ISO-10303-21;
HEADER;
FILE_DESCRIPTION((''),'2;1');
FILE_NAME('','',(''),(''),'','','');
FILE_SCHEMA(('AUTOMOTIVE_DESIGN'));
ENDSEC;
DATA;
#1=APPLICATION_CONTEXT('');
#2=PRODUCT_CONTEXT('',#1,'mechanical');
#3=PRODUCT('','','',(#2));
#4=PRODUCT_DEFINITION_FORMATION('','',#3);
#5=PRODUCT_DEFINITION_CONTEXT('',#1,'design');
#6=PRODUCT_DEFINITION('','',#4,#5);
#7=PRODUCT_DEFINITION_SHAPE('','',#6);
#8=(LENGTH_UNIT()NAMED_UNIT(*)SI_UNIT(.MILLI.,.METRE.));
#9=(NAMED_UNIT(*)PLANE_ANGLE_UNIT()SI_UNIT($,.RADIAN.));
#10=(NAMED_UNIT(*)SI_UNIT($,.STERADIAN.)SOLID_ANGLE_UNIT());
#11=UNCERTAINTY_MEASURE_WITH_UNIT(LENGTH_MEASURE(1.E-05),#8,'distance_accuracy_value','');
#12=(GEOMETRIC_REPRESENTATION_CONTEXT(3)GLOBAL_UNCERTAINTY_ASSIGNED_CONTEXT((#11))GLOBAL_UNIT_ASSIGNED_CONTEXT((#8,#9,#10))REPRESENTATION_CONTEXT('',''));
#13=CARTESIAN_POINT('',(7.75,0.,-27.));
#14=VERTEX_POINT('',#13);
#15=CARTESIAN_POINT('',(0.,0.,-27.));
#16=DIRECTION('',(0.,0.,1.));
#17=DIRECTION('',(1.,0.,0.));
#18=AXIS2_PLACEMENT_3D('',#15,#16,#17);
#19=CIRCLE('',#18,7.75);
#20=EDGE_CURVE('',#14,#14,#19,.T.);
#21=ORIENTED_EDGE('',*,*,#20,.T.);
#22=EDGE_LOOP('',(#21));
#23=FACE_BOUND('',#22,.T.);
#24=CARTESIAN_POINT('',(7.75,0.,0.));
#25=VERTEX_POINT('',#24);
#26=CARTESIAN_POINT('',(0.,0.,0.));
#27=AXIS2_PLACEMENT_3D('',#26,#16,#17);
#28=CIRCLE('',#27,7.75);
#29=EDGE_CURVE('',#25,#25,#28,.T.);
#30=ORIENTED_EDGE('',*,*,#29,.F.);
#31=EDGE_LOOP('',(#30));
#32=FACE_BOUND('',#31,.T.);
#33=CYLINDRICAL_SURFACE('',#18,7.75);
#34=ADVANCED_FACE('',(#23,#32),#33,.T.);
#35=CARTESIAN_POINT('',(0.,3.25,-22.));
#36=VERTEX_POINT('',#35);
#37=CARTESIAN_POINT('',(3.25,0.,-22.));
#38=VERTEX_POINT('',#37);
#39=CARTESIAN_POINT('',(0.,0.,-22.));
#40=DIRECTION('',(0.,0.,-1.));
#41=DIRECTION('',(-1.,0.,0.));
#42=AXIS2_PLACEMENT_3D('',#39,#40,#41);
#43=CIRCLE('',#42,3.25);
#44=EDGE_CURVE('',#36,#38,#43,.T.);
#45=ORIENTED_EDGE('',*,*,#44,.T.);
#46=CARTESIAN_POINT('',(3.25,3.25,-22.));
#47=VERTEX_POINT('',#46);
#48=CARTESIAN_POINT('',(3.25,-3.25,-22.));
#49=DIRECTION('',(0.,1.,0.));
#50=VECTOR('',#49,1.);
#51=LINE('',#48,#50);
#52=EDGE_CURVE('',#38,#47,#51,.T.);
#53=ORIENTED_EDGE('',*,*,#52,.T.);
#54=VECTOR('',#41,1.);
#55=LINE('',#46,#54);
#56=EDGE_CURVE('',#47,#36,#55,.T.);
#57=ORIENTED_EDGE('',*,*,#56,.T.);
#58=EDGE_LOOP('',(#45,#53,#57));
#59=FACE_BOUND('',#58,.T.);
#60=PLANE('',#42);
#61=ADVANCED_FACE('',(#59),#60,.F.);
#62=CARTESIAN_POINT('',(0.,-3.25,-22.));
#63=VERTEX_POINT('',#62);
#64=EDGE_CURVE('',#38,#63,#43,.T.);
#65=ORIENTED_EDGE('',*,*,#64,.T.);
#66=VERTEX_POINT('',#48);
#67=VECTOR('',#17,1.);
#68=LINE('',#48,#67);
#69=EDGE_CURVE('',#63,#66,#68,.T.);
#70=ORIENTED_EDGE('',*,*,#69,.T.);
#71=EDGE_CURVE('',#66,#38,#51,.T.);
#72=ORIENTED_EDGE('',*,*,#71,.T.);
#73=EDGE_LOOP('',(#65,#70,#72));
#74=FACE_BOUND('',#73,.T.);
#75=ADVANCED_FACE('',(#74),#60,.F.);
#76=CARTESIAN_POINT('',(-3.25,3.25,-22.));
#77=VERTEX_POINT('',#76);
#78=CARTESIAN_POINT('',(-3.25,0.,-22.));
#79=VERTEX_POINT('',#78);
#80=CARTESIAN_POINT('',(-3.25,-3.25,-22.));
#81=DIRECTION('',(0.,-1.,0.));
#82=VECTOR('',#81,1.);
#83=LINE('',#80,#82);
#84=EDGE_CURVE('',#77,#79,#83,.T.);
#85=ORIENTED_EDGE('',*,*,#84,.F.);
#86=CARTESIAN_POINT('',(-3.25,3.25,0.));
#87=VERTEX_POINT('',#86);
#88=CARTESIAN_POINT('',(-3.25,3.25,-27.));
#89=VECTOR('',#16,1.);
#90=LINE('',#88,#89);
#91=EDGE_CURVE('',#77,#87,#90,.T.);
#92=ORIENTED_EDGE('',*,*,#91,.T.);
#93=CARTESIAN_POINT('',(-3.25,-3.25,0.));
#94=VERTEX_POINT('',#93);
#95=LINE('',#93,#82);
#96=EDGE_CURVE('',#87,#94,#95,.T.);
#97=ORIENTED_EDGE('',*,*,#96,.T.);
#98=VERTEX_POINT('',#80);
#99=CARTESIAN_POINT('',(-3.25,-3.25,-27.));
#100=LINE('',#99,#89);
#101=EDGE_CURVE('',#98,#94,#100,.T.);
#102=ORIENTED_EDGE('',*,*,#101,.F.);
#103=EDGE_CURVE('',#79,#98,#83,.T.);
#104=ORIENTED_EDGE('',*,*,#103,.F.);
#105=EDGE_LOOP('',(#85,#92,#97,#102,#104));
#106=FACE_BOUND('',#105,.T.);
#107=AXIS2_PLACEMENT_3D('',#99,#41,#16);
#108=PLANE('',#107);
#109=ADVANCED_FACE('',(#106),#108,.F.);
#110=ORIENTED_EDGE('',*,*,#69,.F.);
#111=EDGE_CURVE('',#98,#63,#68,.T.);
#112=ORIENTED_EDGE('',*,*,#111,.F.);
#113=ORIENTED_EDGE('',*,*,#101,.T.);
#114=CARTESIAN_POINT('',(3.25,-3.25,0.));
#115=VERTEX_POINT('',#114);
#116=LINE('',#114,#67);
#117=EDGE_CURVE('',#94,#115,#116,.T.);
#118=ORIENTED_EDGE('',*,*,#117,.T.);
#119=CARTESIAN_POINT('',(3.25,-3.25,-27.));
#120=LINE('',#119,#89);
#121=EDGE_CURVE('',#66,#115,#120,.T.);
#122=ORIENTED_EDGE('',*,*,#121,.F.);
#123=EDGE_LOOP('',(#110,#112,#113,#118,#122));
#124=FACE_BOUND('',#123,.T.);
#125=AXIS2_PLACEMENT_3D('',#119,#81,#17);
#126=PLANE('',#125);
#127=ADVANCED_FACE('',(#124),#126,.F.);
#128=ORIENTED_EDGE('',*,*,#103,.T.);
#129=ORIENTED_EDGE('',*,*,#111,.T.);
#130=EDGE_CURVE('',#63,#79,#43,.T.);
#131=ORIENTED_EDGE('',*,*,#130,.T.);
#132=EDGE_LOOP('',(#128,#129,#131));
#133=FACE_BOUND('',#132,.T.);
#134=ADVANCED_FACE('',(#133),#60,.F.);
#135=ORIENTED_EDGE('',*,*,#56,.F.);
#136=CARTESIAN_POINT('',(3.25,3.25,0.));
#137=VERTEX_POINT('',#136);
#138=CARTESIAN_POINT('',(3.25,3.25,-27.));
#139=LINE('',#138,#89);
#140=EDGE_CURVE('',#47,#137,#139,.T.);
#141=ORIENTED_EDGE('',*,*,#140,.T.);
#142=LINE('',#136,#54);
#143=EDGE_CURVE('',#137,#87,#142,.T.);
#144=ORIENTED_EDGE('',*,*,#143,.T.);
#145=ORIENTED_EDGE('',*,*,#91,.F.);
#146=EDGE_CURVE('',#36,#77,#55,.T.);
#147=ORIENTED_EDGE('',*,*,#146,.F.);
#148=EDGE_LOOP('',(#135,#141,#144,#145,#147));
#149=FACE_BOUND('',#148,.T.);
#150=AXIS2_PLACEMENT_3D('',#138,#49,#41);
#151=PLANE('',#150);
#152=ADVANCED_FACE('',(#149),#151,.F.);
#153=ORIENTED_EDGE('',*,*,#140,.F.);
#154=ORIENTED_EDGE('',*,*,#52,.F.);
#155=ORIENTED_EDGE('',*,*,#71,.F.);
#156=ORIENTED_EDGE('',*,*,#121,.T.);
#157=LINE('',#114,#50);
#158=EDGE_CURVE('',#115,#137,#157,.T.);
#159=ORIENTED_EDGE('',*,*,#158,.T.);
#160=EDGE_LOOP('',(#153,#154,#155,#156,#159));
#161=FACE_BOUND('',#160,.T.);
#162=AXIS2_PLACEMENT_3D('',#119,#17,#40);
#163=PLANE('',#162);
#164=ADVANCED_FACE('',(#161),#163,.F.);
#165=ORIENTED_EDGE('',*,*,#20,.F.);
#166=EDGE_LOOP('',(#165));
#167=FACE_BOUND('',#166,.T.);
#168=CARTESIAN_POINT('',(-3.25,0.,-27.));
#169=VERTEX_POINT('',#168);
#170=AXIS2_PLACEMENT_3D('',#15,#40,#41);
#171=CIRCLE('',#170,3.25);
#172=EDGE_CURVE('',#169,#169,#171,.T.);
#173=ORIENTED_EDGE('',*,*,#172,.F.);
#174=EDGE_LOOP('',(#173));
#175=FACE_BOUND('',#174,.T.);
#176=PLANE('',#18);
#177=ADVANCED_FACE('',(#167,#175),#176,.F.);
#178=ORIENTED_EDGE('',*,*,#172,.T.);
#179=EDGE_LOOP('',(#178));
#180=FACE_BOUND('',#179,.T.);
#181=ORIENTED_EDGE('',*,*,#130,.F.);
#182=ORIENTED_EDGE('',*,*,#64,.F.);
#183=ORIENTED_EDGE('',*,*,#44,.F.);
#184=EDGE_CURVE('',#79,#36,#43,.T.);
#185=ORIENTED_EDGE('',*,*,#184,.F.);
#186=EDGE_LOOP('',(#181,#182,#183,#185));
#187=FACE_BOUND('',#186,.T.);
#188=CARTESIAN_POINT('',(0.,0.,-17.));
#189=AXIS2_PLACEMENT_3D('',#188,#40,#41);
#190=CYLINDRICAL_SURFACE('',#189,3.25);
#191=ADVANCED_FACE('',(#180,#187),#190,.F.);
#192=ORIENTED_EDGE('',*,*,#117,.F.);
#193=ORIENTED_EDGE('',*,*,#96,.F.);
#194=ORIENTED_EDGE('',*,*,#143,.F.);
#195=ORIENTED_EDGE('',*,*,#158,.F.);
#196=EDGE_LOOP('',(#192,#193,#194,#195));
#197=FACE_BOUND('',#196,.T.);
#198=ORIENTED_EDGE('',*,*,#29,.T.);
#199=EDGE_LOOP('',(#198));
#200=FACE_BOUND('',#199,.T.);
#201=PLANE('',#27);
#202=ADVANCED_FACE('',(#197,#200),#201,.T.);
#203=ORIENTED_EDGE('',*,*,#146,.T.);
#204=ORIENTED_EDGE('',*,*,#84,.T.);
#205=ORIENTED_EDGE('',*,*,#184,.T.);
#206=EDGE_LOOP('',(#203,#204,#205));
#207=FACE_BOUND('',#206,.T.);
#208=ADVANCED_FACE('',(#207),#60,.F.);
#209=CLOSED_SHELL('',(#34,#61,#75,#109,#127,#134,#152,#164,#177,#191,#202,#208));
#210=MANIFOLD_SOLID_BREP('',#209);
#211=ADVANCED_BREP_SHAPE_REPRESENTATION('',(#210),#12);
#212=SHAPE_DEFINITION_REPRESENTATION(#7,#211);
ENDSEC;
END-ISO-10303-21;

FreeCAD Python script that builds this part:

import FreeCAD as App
import Part
import Sketcher
Q = App.Units.Quantity

doc = App.newDocument("Part")
params = doc.addObject("Spreadsheet::Sheet", "Params")
for row, (alias, value) in enumerate([
    ("sketch1_diameter", "15.5 mm"),
    ("pad1_length", "27 mm"),
    ("sketch2_width", "6.5 mm"),
    ("sketch3_diameter", "10 mm"),
    ("pad2_length", "5 mm"),
    ("sketch4_diameter", "3.5 mm"),
    ("sketch5_diameter", "6.5 mm"),
    ("pocket3_length", "10 mm"),
], start=1):
    params.set(f"A{row}", alias)
    params.set(f"B{row}", "=" + value)
    params.setAlias(f"B{row}", alias)

body = doc.addObject("PartDesign::Body", "Body")

# Sketch on XY plane
sketch1 = body.newObject("Sketcher::SketchObject", "Sketch")
sketch1.AttachmentSupport = (doc.getObject("XY_Plane"), [""])
sketch1.MapMode = "FlatFace"
sketch1.addGeometry(Part.Circle(App.Vector(0, 0, 0), App.Vector(0, 0, 1), 8), False)
sketch1.addConstraint(Sketcher.Constraint("Coincident", 0, 3, -1, 1))
sketch1.addConstraint(Sketcher.Constraint("Diameter", 0, Q("15.5 mm")))
sketch1.setExpression("Constraints[1]", "Params.sketch1_diameter")
pad1 = body.newObject("PartDesign::Pad", "Pad")
pad1.Profile = sketch1
pad1.setExpression("Length", "Params.pad1_length")
pad1.Reversed = True

# Sketch on XY plane
sketch2 = body.newObject("Sketcher::SketchObject", "Sketch001")
sketch2.AttachmentSupport = (doc.getObject("XY_Plane"), [""])
sketch2.MapMode = "FlatFace"
sketch2.addGeometry(Part.LineSegment(App.Vector(-3, 3, 0), App.Vector(-3, -3, 0)), False)
sketch2.addGeometry(Part.LineSegment(App.Vector(-3, -3, 0), App.Vector(3, -3, 0)), False)
sketch2.addGeometry(Part.LineSegment(App.Vector(3, -3, 0), App.Vector(3, 3, 0)), False)
sketch2.addGeometry(Part.LineSegment(App.Vector(3, 3, 0), App.Vector(-3, 3, 0)), False)
sketch2.addConstraint(Sketcher.Constraint("Coincident", 0, 2, 1, 1))
sketch2.addConstraint(Sketcher.Constraint("Coincident", 1, 2, 2, 1))
sketch2.addConstraint(Sketcher.Constraint("Coincident", 2, 2, 3, 1))
sketch2.addConstraint(Sketcher.Constraint("Coincident", 3, 2, 0, 1))
sketch2.addConstraint(Sketcher.Constraint("Vertical", 0))
sketch2.addConstraint(Sketcher.Constraint("Horizontal", 1))
sketch2.addConstraint(Sketcher.Constraint("Vertical", 2))
sketch2.addConstraint(Sketcher.Constraint("Horizontal", 3))
sketch2.addConstraint(Sketcher.Constraint("Symmetric", 0, 2, 2, 2, -1, 1))
sketch2.addConstraint(Sketcher.Constraint("Equal", 3, 0))
sketch2.addConstraint(Sketcher.Constraint("DistanceX", 1, 1, 1, 2, Q("6.5 mm")))
sketch2.setExpression("Constraints[10]", "Params.sketch2_width")
pocket1 = body.newObject("PartDesign::Pocket", "Pocket")
pocket1.Profile = sketch2
pocket1.Type = "ThroughAll"

# Sketch on XY plane
sketch3 = body.newObject("Sketcher::SketchObject", "Sketch002")
sketch3.AttachmentSupport = (doc.getObject("XY_Plane"), [""])
sketch3.MapMode = "FlatFace"
sketch3.AttachmentOffset = App.Placement(App.Vector(0, 0, -27), App.Rotation())
sketch3.addGeometry(Part.Circle(App.Vector(0, 0, 0), App.Vector(0, 0, 1), 5), False)
sketch3.addConstraint(Sketcher.Constraint("Coincident", 0, 3, -1, 1))
sketch3.addConstraint(Sketcher.Constraint("Diameter", 0, Q("10 mm")))
sketch3.setExpression("Constraints[1]", "Params.sketch3_diameter")
pad2 = body.newObject("PartDesign::Pad", "Pad001")
pad2.Profile = sketch3
pad2.setExpression("Length", "Params.pad2_length")

# Sketch on XY plane
sketch4 = body.newObject("Sketcher::SketchObject", "Sketch003")
sketch4.AttachmentSupport = (doc.getObject("XY_Plane"), [""])
sketch4.MapMode = "FlatFace"
sketch4.AttachmentOffset = App.Placement(App.Vector(0, 0, -27), App.Rotation())
sketch4.addGeometry(Part.Circle(App.Vector(0, 0, 0), App.Vector(0, 0, 1), 1.8), False)
sketch4.addConstraint(Sketcher.Constraint("Coincident", 0, 3, -1, 1))
sketch4.addConstraint(Sketcher.Constraint("Diameter", 0, Q("3.5 mm")))
sketch4.setExpression("Constraints[1]", "Params.sketch4_diameter")
pocket2 = body.newObject("PartDesign::Pocket", "Pocket001")
pocket2.Profile = sketch4
pocket2.Type = "ThroughAll"
pocket2.Reversed = True

# Sketch on XY plane
sketch5 = body.newObject("Sketcher::SketchObject", "Sketch004")
sketch5.AttachmentSupport = (doc.getObject("XY_Plane"), [""])
sketch5.MapMode = "FlatFace"
sketch5.AttachmentOffset = App.Placement(App.Vector(0, 0, -27), App.Rotation())
sketch5.addGeometry(Part.Circle(App.Vector(0, 0, 0), App.Vector(0, 0, 1), 3.2), False)
sketch5.addConstraint(Sketcher.Constraint("Coincident", 0, 3, -1, 1))
sketch5.addConstraint(Sketcher.Constraint("Diameter", 0, Q("6.5 mm")))
sketch5.setExpression("Constraints[1]", "Params.sketch5_diameter")
pocket3 = body.newObject("PartDesign::Pocket", "Pocket002")
pocket3.Profile = sketch5
pocket3.setExpression("Length", "Params.pocket3_length")
pocket3.Reversed = True

doc.recompute()
